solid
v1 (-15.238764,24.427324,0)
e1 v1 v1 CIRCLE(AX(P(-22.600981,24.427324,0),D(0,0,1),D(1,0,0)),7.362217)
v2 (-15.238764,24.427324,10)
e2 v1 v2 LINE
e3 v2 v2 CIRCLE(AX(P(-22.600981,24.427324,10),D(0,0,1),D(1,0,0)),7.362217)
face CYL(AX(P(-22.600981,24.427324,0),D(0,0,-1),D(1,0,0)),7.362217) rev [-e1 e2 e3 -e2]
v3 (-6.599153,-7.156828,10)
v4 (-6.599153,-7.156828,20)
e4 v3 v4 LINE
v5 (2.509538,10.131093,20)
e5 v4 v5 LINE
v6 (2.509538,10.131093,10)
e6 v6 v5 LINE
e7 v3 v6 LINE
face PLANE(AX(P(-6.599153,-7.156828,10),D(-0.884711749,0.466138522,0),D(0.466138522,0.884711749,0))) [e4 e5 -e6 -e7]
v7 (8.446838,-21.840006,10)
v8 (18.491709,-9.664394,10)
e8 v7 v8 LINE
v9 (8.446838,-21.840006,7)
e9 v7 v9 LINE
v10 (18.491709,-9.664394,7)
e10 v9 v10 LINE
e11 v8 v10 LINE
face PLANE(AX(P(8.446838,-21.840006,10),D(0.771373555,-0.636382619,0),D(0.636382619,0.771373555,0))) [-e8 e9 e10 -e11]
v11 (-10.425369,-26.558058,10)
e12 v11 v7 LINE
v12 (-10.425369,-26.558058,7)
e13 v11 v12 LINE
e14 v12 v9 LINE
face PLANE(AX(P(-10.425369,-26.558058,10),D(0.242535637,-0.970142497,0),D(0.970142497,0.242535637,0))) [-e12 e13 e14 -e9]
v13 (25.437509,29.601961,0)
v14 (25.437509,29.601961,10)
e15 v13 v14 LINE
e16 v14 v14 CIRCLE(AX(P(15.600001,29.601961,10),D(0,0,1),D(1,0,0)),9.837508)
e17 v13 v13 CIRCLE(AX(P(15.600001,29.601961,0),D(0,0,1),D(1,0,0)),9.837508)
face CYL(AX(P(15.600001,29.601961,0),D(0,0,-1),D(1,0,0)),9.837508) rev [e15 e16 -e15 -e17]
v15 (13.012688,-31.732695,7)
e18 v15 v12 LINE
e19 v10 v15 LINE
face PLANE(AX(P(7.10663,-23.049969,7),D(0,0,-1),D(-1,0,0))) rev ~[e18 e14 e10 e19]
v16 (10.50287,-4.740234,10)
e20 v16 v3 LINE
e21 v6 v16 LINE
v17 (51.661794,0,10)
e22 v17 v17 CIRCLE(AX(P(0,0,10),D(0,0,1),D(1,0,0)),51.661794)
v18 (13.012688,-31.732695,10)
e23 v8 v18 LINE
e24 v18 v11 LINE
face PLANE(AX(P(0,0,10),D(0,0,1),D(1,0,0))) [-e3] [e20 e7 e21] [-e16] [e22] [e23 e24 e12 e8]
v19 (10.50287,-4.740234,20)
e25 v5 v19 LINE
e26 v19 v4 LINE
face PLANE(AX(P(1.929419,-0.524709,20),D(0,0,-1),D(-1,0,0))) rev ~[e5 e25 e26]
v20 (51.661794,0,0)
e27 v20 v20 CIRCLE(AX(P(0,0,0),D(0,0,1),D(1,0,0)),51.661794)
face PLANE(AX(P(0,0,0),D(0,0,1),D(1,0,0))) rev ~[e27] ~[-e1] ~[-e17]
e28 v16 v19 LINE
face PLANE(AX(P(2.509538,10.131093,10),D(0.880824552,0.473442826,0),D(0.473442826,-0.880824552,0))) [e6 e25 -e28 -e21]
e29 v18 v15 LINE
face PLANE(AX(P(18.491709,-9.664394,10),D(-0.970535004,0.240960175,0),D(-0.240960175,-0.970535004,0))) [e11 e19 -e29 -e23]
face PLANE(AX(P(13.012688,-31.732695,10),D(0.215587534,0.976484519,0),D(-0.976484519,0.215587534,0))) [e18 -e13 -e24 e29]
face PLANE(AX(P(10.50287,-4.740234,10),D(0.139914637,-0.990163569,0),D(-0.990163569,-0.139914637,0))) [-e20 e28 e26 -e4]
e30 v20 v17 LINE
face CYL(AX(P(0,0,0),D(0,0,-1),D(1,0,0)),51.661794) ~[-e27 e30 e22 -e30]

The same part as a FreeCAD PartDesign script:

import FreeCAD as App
import Part
import Sketcher
from FreeCAD import Vector
Q = App.Units.Quantity

doc = App.newDocument("Part")
body = doc.addObject("PartDesign::Body", "Body")

sketch1 = body.newObject("Sketcher::SketchObject", "Sketch")
sketch1.AttachmentSupport = (doc.getObject("XY_Plane"), [""])
sketch1.MapMode = "FlatFace"
sketch1.addGeometry([
    Part.Circle(Vector(0, 0, 0), Vector(0, 0, 1), 52),
    Part.Circle(Vector(-23, 24, 0), Vector(0, 0, 1), 7),
    Part.Circle(Vector(16, 30, 0), Vector(0, 0, 1), 10),
], False)
sketch1.addConstraint([
    Sketcher.Constraint("Coincident", 0, 3, -1, 1),
    Sketcher.Constraint("DistanceX", -1, 1, 2, 3, 15.600001),
    Sketcher.Constraint("Diameter", 0, 103.323588),
    Sketcher.Constraint("Diameter", 1, 14.724434),
    Sketcher.Constraint("Diameter", 2, 19.675016),
    Sketcher.Constraint("DistanceX", 1, 3, -1, 1, 22.600981),
    Sketcher.Constraint("DistanceY", -1, 1, 2, 3, 29.601961),
    Sketcher.Constraint("DistanceY", -1, 1, 1, 3, 24.427324),
])
pad1 = body.newObject("PartDesign::Pad", "Pad")
pad1.Profile = sketch1
pad1.Length = 10

sketch2 = body.newObject("Sketcher::SketchObject", "Sketch001")
sketch2.AttachmentSupport = (doc.getObject("XY_Plane"), [""])
sketch2.MapMode = "FlatFace"
sketch2.AttachmentOffset = App.Placement(Vector(0, 0, 10), App.Rotation())
sketch2.addGeometry([
    Part.LineSegment(Vector(8, -22, 0), Vector(-10, -27, 0)),
    Part.LineSegment(Vector(-10, -27, 0), Vector(13, -32, 0)),
    Part.LineSegment(Vector(13, -32, 0), Vector(18, -10, 0)),
    Part.LineSegment(Vector(18, -10, 0), Vector(8, -22, 0)),
], False)
sketch2.addConstraint([
    Sketcher.Constraint("Coincident", 0, 2, 1, 1),
    Sketcher.Constraint("Coincident", 1, 2, 2, 1),
    Sketcher.Constraint("Coincident", 2, 2, 3, 1),
    Sketcher.Constraint("Coincident", 3, 2, 0, 1),
    Sketcher.Constraint("Angle", 1, Q("-12.449999 deg")),
    Sketcher.Constraint("DistanceY", 1, 2, 2, 2, 22.068301),
    Sketcher.Constraint("DistanceX", 0, 2, -1, 1, 10.425369),
    Sketcher.Constraint("DistanceX", -1, 1, 1, 2, 13.012688),
    Sketcher.Constraint("DistanceX", -1, 1, 2, 2, 18.491709),
    Sketcher.Constraint("DistanceX", 3, 2, 1, 2, 4.56585),
    Sketcher.Constraint("DistanceY", 1, 2, 3, 2, 9.892689),
    Sketcher.Constraint("DistanceY", 0, 2, -1, 1, 26.558058),
])
pocket1 = body.newObject("PartDesign::Pocket", "Pocket")
pocket1.Profile = sketch2
pocket1.Length = 3

sketch3 = body.newObject("Sketcher::SketchObject", "Sketch002")
sketch3.AttachmentSupport = (doc.getObject("XY_Plane"), [""])
sketch3.MapMode = "FlatFace"
sketch3.AttachmentOffset = App.Placement(Vector(0, 0, 10), App.Rotation())
sketch3.addGeometry([
    Part.LineSegment(Vector(3, 10, 0), Vector(-7, -7, 0)),
    Part.LineSegment(Vector(-7, -7, 0), Vector(11, -5, 0)),
    Part.LineSegment(Vector(11, -5, 0), Vector(3, 10, 0)),
], False)
sketch3.addConstraint([
    Sketcher.Constraint("Coincident", 0, 2, 1, 1),
    Sketcher.Constraint("Coincident", 1, 2, 2, 1),
    Sketcher.Constraint("Coincident", 2, 2, 0, 1),
    Sketcher.Constraint("Distance", 0, 19.540739),
    Sketcher.Constraint("DistanceX", -1, 1, 1, 2, 10.50287),
    Sketcher.Constraint("DistanceX", -1, 1, 2, 2, 2.509538),
    Sketcher.Constraint("DistanceX", 0, 2, 2, 2, 9.108691),
    Sketcher.Constraint("Distance", 1, 17.271917),
    Sketcher.Constraint("DistanceY", 0, 2, -1, 1, 7.156828),
])
pad2 = body.newObject("PartDesign::Pad", "Pad001")
pad2.Profile = sketch3
pad2.Length = 10

doc.recompute()
